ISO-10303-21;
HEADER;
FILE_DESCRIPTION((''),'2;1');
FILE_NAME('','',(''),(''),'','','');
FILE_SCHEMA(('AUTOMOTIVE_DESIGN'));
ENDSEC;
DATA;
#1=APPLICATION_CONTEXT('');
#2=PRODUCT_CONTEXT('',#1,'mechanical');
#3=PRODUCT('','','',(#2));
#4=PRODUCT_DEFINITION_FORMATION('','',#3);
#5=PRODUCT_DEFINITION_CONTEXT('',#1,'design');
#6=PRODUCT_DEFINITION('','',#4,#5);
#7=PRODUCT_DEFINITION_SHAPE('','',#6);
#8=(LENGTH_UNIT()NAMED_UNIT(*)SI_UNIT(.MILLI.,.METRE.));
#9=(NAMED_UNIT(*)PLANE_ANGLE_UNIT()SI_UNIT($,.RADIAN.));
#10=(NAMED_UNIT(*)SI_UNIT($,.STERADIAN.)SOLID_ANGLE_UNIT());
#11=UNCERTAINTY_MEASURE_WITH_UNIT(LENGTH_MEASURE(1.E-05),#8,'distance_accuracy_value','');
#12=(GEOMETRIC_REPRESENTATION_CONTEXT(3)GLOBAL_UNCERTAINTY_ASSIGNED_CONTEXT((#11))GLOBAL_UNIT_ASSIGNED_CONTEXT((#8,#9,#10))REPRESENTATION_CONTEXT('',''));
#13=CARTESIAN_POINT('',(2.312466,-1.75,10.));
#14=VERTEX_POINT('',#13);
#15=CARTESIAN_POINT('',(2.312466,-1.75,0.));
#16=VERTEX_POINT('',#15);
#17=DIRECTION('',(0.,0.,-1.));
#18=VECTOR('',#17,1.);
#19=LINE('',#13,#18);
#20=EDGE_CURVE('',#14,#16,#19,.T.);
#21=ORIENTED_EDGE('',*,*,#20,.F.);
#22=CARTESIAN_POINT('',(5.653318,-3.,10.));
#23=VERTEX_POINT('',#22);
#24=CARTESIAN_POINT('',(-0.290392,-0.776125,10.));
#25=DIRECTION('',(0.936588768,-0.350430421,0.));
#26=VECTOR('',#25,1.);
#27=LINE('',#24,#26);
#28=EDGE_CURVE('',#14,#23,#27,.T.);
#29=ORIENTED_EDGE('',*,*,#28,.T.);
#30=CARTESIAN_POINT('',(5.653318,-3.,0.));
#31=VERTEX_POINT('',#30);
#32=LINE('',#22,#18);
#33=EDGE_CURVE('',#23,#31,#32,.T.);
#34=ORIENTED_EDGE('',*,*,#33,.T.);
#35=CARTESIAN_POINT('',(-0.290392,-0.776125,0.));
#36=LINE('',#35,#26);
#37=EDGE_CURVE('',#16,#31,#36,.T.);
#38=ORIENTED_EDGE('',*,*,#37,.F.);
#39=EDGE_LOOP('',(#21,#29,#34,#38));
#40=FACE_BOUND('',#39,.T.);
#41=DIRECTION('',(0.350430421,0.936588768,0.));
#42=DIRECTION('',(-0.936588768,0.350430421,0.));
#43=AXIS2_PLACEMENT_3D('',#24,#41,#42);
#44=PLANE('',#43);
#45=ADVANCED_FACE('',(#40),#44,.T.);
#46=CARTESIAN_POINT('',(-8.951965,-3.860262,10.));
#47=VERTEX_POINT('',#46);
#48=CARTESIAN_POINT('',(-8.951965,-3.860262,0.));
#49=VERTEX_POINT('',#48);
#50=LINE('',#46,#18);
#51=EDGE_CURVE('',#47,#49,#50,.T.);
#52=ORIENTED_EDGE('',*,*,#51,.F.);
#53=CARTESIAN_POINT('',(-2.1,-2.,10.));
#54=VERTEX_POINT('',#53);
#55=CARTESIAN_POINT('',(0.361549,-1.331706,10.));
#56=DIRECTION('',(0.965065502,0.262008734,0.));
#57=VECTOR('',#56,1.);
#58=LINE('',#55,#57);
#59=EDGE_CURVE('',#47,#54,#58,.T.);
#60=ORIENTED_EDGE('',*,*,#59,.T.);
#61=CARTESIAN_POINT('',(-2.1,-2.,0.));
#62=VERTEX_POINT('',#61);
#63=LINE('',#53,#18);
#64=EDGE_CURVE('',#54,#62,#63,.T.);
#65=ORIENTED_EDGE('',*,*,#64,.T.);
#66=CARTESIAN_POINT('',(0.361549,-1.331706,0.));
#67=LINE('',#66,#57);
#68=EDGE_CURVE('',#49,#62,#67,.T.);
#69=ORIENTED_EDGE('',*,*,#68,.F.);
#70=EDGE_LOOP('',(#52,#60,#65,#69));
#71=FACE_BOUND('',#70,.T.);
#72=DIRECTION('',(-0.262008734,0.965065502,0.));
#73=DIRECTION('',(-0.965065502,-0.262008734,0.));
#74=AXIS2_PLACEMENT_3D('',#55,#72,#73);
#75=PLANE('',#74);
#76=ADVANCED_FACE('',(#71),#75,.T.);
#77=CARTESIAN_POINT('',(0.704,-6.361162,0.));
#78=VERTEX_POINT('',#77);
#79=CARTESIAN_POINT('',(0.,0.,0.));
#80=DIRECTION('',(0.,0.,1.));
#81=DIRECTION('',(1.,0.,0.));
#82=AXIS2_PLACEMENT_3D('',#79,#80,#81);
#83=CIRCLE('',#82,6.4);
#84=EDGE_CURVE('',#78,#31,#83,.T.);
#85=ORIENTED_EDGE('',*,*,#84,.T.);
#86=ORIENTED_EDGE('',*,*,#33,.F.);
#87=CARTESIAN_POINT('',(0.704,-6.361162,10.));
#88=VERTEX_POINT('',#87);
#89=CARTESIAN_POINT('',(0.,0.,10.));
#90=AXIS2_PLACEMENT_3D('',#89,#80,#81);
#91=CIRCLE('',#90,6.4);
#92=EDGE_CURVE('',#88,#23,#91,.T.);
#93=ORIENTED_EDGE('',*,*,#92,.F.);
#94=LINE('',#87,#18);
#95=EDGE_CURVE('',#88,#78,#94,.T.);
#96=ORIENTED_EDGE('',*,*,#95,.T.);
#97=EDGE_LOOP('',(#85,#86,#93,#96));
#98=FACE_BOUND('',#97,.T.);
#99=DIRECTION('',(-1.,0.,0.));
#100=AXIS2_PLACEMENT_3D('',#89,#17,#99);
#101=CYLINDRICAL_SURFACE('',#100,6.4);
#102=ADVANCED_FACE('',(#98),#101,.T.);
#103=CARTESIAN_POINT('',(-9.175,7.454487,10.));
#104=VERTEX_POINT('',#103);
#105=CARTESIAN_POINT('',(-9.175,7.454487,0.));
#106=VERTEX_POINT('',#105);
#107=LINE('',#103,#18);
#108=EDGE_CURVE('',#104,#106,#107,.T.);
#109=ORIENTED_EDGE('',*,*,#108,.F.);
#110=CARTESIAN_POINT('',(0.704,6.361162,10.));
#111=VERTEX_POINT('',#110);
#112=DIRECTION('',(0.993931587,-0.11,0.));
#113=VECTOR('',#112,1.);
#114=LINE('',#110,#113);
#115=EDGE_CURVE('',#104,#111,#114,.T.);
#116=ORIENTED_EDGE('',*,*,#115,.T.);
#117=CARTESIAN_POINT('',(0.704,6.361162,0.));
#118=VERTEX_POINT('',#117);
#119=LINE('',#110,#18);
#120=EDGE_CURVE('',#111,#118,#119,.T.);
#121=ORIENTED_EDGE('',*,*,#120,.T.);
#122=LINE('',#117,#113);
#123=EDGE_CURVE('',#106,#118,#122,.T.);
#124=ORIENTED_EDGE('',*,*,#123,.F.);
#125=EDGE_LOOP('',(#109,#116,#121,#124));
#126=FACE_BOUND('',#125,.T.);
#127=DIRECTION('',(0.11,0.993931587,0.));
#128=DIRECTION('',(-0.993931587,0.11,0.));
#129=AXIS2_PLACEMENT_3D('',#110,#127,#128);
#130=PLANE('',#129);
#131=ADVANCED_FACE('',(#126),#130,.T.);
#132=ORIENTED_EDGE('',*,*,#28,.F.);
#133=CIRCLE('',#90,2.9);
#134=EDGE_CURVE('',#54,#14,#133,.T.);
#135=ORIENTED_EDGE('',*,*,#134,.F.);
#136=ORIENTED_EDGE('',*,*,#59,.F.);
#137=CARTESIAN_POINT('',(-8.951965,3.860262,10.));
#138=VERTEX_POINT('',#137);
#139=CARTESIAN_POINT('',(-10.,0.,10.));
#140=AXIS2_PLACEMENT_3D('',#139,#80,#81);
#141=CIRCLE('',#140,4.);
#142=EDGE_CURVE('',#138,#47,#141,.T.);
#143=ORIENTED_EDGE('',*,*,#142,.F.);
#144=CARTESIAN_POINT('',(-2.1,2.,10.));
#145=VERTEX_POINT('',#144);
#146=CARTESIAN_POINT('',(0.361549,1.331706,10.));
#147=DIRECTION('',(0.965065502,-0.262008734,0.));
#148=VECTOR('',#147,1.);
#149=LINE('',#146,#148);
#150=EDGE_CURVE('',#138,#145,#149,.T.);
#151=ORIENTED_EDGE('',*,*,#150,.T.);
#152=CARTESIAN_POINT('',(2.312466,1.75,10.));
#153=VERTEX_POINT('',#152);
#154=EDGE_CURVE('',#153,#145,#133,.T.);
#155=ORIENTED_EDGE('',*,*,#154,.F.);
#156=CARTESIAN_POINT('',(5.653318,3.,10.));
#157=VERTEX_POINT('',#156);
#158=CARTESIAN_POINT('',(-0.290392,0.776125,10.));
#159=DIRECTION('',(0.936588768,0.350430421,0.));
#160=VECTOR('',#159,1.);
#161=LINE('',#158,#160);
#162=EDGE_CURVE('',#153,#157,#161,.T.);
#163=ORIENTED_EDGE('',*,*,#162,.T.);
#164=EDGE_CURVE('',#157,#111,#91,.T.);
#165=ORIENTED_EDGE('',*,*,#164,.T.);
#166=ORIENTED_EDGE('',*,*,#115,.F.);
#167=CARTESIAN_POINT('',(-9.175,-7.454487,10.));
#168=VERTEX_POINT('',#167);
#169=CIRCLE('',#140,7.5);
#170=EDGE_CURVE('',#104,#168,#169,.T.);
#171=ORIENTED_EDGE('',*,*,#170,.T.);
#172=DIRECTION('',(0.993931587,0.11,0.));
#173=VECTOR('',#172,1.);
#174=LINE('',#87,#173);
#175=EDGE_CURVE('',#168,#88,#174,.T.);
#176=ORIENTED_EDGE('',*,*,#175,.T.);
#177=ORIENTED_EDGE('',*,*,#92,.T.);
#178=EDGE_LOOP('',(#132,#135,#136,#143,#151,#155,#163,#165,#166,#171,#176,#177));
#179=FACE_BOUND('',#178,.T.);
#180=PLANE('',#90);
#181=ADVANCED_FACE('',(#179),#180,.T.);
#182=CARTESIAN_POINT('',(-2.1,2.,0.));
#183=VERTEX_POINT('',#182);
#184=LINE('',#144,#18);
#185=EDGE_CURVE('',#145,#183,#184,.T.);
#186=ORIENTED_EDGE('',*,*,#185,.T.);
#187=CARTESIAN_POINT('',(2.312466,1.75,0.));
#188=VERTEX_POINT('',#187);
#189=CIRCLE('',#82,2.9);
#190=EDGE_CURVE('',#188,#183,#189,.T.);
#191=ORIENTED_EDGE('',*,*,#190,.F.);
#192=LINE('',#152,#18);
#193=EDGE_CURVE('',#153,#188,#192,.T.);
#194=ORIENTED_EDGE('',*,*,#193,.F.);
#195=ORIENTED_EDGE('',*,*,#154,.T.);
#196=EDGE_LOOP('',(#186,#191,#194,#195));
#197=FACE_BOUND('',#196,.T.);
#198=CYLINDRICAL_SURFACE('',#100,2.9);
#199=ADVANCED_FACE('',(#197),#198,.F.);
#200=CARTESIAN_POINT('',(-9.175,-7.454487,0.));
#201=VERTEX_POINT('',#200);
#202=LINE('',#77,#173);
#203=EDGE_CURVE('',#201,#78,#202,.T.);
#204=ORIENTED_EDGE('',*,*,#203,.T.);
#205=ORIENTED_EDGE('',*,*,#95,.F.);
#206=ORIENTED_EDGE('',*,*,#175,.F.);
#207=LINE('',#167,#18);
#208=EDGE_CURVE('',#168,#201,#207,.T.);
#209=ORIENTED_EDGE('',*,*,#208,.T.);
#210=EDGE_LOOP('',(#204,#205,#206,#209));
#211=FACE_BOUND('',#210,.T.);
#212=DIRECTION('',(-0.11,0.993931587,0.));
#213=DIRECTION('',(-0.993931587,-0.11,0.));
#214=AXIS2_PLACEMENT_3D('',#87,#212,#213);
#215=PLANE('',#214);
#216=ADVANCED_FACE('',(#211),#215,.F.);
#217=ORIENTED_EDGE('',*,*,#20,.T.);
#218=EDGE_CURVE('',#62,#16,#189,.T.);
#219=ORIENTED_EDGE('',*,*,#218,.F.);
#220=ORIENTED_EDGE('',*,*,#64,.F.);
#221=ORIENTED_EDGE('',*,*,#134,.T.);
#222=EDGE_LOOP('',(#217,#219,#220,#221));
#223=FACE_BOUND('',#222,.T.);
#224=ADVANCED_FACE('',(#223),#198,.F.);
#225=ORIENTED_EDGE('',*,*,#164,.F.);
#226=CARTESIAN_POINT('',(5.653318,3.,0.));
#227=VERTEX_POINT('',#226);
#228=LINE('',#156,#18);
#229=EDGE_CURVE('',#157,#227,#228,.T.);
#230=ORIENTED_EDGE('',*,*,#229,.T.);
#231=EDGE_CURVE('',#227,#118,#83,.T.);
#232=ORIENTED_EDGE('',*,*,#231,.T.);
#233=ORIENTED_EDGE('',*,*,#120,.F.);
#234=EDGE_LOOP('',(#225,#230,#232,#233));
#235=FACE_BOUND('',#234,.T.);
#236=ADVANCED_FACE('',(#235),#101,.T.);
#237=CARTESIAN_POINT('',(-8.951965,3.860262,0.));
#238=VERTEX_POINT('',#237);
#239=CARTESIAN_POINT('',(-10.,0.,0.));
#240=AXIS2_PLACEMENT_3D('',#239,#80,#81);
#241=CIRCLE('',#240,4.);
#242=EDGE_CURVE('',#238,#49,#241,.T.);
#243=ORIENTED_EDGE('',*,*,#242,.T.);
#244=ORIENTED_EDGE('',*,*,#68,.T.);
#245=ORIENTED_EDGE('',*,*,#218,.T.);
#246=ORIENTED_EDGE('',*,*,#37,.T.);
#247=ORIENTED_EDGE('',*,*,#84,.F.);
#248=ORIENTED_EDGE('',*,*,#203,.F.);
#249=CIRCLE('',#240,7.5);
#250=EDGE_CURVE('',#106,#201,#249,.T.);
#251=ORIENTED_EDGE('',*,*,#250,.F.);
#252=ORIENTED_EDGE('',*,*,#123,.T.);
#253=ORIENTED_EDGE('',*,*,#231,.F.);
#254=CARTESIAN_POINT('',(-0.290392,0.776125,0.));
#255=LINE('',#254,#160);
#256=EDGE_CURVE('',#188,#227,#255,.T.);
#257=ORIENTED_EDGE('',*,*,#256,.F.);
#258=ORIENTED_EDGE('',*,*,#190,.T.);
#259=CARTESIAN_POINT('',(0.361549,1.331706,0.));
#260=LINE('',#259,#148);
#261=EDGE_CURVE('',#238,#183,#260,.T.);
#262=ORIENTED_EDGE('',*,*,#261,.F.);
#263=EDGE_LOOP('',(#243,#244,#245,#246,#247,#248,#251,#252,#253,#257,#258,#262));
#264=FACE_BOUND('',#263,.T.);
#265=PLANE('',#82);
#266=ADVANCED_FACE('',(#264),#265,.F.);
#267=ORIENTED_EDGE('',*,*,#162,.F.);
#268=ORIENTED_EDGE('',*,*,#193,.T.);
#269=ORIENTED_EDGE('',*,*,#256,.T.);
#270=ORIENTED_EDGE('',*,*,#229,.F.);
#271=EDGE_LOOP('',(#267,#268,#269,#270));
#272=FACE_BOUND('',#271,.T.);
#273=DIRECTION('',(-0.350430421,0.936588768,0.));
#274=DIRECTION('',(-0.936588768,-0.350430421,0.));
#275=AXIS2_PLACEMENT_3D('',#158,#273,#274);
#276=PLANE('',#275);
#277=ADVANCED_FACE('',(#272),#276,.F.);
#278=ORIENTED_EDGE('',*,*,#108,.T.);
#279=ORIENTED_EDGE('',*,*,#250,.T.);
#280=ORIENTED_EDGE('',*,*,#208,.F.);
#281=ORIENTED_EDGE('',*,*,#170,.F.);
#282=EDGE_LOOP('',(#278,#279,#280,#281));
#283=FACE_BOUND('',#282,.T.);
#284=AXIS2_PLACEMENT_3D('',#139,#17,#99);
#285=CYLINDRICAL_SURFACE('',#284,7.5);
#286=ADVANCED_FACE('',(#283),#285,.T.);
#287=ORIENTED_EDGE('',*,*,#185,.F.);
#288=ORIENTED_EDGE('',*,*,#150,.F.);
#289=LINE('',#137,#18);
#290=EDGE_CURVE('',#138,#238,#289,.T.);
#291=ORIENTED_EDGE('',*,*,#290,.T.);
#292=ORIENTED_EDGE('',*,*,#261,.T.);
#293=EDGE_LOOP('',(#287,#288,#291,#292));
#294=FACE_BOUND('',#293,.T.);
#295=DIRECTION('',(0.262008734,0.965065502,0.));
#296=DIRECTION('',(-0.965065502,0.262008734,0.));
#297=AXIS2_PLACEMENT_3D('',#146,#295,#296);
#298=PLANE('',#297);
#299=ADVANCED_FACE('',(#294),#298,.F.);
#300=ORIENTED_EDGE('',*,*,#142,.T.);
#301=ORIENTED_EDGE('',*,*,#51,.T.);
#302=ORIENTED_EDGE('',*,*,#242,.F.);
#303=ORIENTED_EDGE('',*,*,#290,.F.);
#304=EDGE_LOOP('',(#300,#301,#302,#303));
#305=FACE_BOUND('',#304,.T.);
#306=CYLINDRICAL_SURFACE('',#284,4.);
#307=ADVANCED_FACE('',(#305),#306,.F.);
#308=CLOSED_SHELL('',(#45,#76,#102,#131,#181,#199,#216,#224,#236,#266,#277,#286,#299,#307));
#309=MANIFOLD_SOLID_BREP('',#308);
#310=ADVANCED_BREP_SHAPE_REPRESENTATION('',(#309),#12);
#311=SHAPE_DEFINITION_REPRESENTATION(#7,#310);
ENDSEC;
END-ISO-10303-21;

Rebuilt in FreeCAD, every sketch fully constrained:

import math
import FreeCAD as App
import Part
import Sketcher

V = App.Vector

doc = App.newDocument("Part")
body = doc.addObject("PartDesign::Body", "Body")

# Sketch on XY plane
sketch1 = body.newObject("Sketcher::SketchObject", "Sketch")
sketch1.AttachmentSupport = (doc.getObject("XY_Plane"), [""])
sketch1.MapMode = "FlatFace"
sketch1.addGeometry(Part.LineSegment(V(0.7, 6.4, 0), V(-9.2, 7.5, 0)), False)
sketch1.addGeometry(Part.ArcOfCircle(Part.Circle(V(-10, 0, 0), V(0, 0, 1), 7.5), math.radians(84), math.radians(276)), False)
sketch1.addGeometry(Part.LineSegment(V(-9.2, -7.5, 0), V(0.7, -6.4, 0)), False)
sketch1.addGeometry(Part.ArcOfCircle(Part.Circle(V(0, 0, 0), V(0, 0, 1), 6.4), math.radians(-84), math.radians(-28)), False)
sketch1.addGeometry(Part.LineSegment(V(5.7, -3, 0), V(2.3, -1.8, 0)), False)
sketch1.addGeometry(Part.ArcOfCircle(Part.Circle(V(0, 0, 0), V(0, 0, 1), 2.9), math.radians(-136), math.radians(-37)), False)
sketch1.addGeometry(Part.LineSegment(V(-2.1, -2, 0), V(-9, -3.9, 0)), False)
sketch1.addGeometry(Part.ArcOfCircle(Part.Circle(V(-10, 0, 0), V(0, 0, 1), 4), math.radians(75), math.radians(285)), False)
sketch1.addGeometry(Part.LineSegment(V(-9, 3.9, 0), V(-2.1, 2, 0)), False)
sketch1.addGeometry(Part.ArcOfCircle(Part.Circle(V(0, 0, 0), V(0, 0, 1), 2.9), math.radians(37), math.radians(136)), False)
sketch1.addGeometry(Part.LineSegment(V(2.3, 1.8, 0), V(5.7, 3, 0)), False)
sketch1.addGeometry(Part.ArcOfCircle(Part.Circle(V(0, 0, 0), V(0, 0, 1), 6.4), math.radians(28), math.radians(84)), False)
sketch1.addConstraint(Sketcher.Constraint("Tangent", 0, 2, 1, 1))
sketch1.addConstraint(Sketcher.Constraint("Tangent", 1, 2, 2, 1))
sketch1.addConstraint(Sketcher.Constraint("Tangent", 2, 2, 3, 1))
sketch1.addConstraint(Sketcher.Constraint("Coincident", 3, 2, 4, 1))
sketch1.addConstraint(Sketcher.Constraint("Coincident", 4, 2, 5, 2))
sketch1.addConstraint(Sketcher.Constraint("Coincident", 5, 1, 6, 1))
sketch1.addConstraint(Sketcher.Constraint("Tangent", 6, 2, 7, 2))
sketch1.addConstraint(Sketcher.Constraint("Tangent", 7, 1, 8, 1))
sketch1.addConstraint(Sketcher.Constraint("Coincident", 8, 2, 9, 2))
sketch1.addConstraint(Sketcher.Constraint("Coincident", 9, 1, 10, 1))
sketch1.addConstraint(Sketcher.Constraint("Coincident", 10, 2, 11, 1))
sketch1.addConstraint(Sketcher.Constraint("Tangent", 11, 2, 0, 1))
sketch1.addConstraint(Sketcher.Constraint("Coincident", 3, 3, -1, 1))
sketch1.addConstraint(Sketcher.Constraint("Coincident", 5, 3, -1, 1))
sketch1.addConstraint(Sketcher.Constraint("Coincident", 9, 3, -1, 1))
sketch1.addConstraint(Sketcher.Constraint("Coincident", 11, 3, -1, 1))
sketch1.addConstraint(Sketcher.Constraint("Coincident", 7, 3, 1, 3))
sketch1.addConstraint(Sketcher.Constraint("Equal", 5, 9))
sketch1.addConstraint(Sketcher.Constraint("Equal", 3, 11))
sketch1.addConstraint(Sketcher.Constraint("Symmetric", 6, 2, 7, 1, -1))
sketch1.addConstraint(Sketcher.Constraint("Vertical", 4, 2, 9, 1))
sketch1.addConstraint(Sketcher.Constraint("Vertical", 3, 2, 10, 2))
sketch1.addConstraint(Sketcher.Constraint("Radius", 7, 4.0))
sketch1.addConstraint(Sketcher.Constraint("Radius", 1, 7.5))
sketch1.addConstraint(Sketcher.Constraint("Radius", 3, 6.4))
sketch1.addConstraint(Sketcher.Constraint("Radius", 5, 2.9))
sketch1.addConstraint(Sketcher.Constraint("DistanceX", 1, 3, -1, 1, 10.0))
sketch1.addConstraint(Sketcher.Constraint("DistanceY", 3, 2, -1, 1, 3.0))
sketch1.addConstraint(Sketcher.Constraint("DistanceY", 5, 1, -1, 1, 2.0))
sketch1.addConstraint(Sketcher.Constraint("DistanceY", 4, 2, 9, 1, 3.5))
pad1 = body.newObject("PartDesign::Pad", "Pad")
pad1.Profile = sketch1
pad1.Length = 10

doc.recompute()
